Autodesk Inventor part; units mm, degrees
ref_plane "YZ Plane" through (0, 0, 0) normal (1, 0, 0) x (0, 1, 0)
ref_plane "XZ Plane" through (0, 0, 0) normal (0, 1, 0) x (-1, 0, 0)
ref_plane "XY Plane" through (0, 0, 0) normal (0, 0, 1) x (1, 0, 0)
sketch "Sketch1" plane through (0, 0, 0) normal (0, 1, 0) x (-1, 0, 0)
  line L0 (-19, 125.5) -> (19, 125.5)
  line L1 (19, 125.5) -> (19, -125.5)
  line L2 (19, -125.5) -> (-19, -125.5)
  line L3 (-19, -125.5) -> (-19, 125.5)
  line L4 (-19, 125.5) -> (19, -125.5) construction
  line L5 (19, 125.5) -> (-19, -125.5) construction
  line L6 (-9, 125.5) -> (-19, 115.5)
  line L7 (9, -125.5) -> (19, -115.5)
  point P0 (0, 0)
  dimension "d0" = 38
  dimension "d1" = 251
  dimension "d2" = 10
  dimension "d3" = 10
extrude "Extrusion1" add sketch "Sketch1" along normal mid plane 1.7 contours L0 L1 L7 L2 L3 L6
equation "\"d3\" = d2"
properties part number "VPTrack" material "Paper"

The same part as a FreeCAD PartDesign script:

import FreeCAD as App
import Part
import Sketcher


def add_polygon(sketch, points):
    """Adds a closed chain of lines whose ends are joined by coincident constraints."""
    first, n = sketch.GeometryCount, len(points)
    for a, b in zip(points, points[1:] + points[:1]):
        sketch.addGeometry(Part.LineSegment(App.Vector(*a, 0), App.Vector(*b, 0)), False)
    for i in range(n):
        sketch.addConstraint(Sketcher.Constraint("Coincident", first + i, 2, first + (i + 1) % n, 1))

doc = App.newDocument("Part")
body = doc.addObject("PartDesign::Body", "Body")

sketch1 = body.newObject("Sketcher::SketchObject", "Sketch")
sketch1.AttachmentSupport = (doc.getObject("XZ_Plane"), [""])
sketch1.MapMode = "FlatFace"
add_polygon(sketch1, [(-19, 126), (9, 126), (19, 116), (19, -126), (-9, -126), (-19, -116)])
sketch1.addConstraint([
    Sketcher.Constraint("Horizontal", 0),
    Sketcher.Constraint("Vertical", 2),
    Sketcher.Constraint("Horizontal", 3),
    Sketcher.Constraint("Vertical", 5),
    Sketcher.Constraint("Symmetric", 0, 2, 3, 2, -1, 1),
    Sketcher.Constraint("Symmetric", 1, 2, 4, 2, -1, 1),
    Sketcher.Constraint("DistanceX", 0, 2, 1, 2, 10.0),
    Sketcher.Constraint("DistanceY", 1, 2, 0, 2, 10.0),
    Sketcher.Constraint("DistanceY", 2, 2, 0, 2, 251.0),
    Sketcher.Constraint("DistanceX", 4, 2, 2, 2, 38.0),
])
pad1 = body.newObject("PartDesign::Pad", "Pad")
pad1.Profile = sketch1
pad1.Length = 1.7
pad1.Midplane = True

doc.recompute()
